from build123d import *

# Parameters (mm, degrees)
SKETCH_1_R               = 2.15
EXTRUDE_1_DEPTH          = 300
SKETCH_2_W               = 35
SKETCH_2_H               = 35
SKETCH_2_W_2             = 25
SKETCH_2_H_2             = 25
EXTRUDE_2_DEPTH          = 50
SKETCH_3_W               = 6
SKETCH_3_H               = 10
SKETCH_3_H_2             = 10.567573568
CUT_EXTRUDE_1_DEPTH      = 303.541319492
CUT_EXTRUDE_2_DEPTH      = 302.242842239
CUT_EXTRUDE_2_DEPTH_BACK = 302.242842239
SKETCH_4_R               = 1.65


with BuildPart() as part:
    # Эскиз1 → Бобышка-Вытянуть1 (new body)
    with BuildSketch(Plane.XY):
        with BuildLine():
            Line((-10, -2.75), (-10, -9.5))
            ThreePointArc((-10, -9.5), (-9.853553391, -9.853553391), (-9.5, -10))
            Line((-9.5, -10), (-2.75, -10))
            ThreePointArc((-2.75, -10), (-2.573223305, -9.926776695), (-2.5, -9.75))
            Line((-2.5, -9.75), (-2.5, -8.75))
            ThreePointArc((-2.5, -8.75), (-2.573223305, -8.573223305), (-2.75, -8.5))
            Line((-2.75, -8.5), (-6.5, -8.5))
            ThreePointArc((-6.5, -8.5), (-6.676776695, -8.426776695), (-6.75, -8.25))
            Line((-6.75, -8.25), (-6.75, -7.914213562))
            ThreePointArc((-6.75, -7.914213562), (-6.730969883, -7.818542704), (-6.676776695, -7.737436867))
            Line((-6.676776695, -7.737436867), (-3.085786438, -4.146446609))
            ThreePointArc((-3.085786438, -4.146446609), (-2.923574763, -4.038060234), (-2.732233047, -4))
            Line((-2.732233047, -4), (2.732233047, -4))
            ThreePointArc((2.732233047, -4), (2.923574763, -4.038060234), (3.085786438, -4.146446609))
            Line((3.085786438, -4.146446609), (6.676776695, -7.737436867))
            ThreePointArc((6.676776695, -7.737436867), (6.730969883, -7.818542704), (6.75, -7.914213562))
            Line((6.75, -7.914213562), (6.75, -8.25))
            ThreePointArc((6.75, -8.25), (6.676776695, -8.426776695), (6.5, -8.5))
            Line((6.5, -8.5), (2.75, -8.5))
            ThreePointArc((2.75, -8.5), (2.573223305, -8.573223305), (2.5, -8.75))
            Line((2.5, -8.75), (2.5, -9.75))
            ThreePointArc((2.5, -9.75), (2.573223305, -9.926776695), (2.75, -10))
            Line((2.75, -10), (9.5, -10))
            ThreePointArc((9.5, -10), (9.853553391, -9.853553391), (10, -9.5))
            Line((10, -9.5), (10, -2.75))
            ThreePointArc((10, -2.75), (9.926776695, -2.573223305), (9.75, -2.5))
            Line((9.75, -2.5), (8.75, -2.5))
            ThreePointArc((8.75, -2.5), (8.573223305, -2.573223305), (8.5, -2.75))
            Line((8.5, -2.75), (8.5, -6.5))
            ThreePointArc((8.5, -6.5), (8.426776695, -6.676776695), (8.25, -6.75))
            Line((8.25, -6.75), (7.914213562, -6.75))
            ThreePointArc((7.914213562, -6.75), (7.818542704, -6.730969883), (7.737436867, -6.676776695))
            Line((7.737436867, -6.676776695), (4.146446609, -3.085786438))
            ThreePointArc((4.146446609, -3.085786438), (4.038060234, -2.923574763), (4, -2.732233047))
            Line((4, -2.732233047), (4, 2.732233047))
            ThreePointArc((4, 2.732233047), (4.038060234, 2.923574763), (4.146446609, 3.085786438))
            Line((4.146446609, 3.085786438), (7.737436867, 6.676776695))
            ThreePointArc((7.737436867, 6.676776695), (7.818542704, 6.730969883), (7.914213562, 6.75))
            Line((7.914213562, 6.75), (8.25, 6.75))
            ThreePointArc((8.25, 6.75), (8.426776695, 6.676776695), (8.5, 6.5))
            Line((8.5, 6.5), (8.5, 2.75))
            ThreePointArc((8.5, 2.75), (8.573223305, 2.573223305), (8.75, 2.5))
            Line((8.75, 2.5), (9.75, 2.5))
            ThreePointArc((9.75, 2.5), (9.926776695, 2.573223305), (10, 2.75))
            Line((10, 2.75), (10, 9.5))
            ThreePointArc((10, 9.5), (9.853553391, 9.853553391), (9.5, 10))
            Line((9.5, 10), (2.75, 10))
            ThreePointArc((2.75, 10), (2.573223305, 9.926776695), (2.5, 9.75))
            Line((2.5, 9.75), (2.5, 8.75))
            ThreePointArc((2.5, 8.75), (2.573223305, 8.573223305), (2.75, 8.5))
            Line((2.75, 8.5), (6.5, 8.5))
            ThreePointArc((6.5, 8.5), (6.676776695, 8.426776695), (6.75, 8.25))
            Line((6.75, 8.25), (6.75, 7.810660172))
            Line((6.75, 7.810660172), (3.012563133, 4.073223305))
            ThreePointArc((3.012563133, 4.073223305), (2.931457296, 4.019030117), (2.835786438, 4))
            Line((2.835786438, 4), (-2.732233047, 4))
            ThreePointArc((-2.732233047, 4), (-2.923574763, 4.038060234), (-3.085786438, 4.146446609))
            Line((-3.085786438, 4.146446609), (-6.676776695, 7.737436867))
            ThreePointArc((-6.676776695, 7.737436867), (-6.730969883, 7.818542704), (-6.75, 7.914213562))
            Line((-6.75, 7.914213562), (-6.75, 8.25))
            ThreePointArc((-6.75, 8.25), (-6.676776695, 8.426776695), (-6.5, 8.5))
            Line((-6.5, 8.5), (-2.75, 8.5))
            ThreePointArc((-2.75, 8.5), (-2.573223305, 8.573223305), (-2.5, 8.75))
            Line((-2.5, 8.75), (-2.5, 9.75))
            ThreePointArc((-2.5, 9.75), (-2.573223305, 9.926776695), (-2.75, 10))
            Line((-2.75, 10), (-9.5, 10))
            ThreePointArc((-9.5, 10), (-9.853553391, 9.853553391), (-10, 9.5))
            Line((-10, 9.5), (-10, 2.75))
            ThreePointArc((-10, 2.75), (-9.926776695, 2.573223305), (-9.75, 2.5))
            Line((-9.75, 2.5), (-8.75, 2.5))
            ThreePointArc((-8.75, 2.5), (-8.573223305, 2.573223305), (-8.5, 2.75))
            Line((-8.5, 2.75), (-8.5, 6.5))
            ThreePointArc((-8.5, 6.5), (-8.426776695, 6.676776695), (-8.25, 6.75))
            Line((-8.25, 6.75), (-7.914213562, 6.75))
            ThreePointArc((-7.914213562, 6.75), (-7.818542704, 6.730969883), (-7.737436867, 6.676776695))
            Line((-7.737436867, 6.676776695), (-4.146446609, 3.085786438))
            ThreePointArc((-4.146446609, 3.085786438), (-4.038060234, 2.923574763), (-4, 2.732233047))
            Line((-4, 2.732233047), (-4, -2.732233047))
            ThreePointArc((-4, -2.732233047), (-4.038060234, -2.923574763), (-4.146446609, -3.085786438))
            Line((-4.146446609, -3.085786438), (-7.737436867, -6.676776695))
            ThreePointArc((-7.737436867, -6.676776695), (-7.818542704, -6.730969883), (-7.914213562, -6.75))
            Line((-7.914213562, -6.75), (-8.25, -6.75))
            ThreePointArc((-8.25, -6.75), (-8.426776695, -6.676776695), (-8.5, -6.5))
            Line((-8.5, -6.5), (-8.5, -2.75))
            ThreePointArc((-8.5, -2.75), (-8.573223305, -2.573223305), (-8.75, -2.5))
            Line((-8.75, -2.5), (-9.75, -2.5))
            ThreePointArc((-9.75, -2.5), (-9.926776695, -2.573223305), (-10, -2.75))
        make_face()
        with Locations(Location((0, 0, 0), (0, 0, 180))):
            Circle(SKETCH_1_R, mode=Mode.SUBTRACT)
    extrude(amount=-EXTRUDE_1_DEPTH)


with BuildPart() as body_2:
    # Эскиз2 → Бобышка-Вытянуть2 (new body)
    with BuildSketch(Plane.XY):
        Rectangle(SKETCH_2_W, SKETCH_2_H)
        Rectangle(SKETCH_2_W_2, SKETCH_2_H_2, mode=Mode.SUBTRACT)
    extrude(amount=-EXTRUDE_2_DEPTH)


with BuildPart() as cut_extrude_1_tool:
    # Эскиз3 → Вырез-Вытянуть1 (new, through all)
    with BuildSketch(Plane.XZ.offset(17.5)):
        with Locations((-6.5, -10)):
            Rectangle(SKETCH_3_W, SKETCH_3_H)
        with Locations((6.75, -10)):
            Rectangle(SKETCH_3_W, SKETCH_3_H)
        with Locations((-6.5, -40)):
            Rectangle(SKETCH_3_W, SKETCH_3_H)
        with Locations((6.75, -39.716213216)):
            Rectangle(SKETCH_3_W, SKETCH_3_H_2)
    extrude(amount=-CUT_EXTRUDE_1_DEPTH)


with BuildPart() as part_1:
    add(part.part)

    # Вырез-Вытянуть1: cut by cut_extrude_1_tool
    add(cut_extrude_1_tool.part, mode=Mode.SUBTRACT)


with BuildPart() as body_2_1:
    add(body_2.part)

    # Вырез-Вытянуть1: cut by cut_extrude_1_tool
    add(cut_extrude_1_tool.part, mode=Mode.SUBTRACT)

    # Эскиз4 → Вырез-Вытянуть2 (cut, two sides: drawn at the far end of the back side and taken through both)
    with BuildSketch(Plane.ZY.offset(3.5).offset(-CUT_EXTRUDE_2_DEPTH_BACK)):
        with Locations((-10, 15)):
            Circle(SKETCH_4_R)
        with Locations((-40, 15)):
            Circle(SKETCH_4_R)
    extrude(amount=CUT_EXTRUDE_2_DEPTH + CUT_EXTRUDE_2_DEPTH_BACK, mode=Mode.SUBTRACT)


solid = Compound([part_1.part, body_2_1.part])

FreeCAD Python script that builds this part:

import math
import FreeCAD as App
import Part
import Sketcher
from FreeCAD import Vector

doc = App.newDocument("Part")
body = doc.addObject("PartDesign::Body", "Body")

sketch1 = body.newObject("Sketcher::SketchObject", "Sketch")
sketch1.AttachmentSupport = (doc.getObject("XY_Plane"), [""])
sketch1.MapMode = "FlatFace"
sketch1.addGeometry(Part.LineSegment(Vector(-10, -2.75, 0), Vector(-10, -9.5, 0)), False)
sketch1.addGeometry(Part.ArcOfCircle(Part.Circle(Vector(-9.5, -9.5, 0), Vector(0, 0, 1), 0.5), math.radians(180), math.radians(270)), False)
sketch1.addGeometry(Part.LineSegment(Vector(-9.5, -10, 0), Vector(-2.75, -10, 0)), False)
sketch1.addGeometry(Part.ArcOfCircle(Part.Circle(Vector(-2.75, -9.75, 0), Vector(0, 0, 1), 0.25), math.radians(-90), math.radians(0)), False)
sketch1.addGeometry(Part.LineSegment(Vector(-2.5, -9.75, 0), Vector(-2.5, -8.75, 0)), False)
sketch1.addGeometry(Part.ArcOfCircle(Part.Circle(Vector(-2.75, -8.75, 0), Vector(0, 0, 1), 0.25), math.radians(0), math.radians(90)), False)
sketch1.addGeometry(Part.LineSegment(Vector(-2.75, -8.5, 0), Vector(-6.5, -8.5, 0)), False)
sketch1.addGeometry(Part.ArcOfCircle(Part.Circle(Vector(-6.5, -8.25, 0), Vector(0, 0, 1), 0.25), math.radians(-180), math.radians(-90)), False)
sketch1.addGeometry(Part.LineSegment(Vector(-6.75, -8.25, 0), Vector(-6.75, -7.914214, 0)), False)
sketch1.addGeometry(Part.ArcOfCircle(Part.Circle(Vector(-6.5, -7.914214, 0), Vector(0, 0, 1), 0.25), math.radians(135), math.radians(180)), False)
sketch1.addGeometry(Part.LineSegment(Vector(-6.676777, -7.737437, 0), Vector(-3.085786, -4.146447, 0)), False)
sketch1.addGeometry(Part.ArcOfCircle(Part.Circle(Vector(-2.732233, -4.5, 0), Vector(0, 0, 1), 0.5), math.radians(90), math.radians(135)), False)
sketch1.addGeometry(Part.LineSegment(Vector(-2.732233, -4, 0), Vector(2.732233, -4, 0)), False)
sketch1.addGeometry(Part.ArcOfCircle(Part.Circle(Vector(2.732233, -4.5, 0), Vector(0, 0, 1), 0.5), math.radians(45), math.radians(90)), False)
sketch1.addGeometry(Part.LineSegment(Vector(3.085786, -4.146447, 0), Vector(6.676777, -7.737437, 0)), False)
sketch1.addGeometry(Part.ArcOfCircle(Part.Circle(Vector(6.5, -7.914214, 0), Vector(0, 0, 1), 0.25), math.radians(0), math.radians(45)), False)
sketch1.addGeometry(Part.LineSegment(Vector(6.75, -7.914214, 0), Vector(6.75, -8.25, 0)), False)
sketch1.addGeometry(Part.ArcOfCircle(Part.Circle(Vector(6.5, -8.25, 0), Vector(0, 0, 1), 0.25), math.radians(-90), math.radians(0)), False)
sketch1.addGeometry(Part.LineSegment(Vector(6.5, -8.5, 0), Vector(2.75, -8.5, 0)), False)
sketch1.addGeometry(Part.ArcOfCircle(Part.Circle(Vector(2.75, -8.75, 0), Vector(0, 0, 1), 0.25), math.radians(90), math.radians(180)), False)
sketch1.addGeometry(Part.LineSegment(Vector(2.5, -8.75, 0), Vector(2.5, -9.75, 0)), False)
sketch1.addGeometry(Part.ArcOfCircle(Part.Circle(Vector(2.75, -9.75, 0), Vector(0, 0, 1), 0.25), math.radians(-180), math.radians(-90)), False)
sketch1.addGeometry(Part.LineSegment(Vector(2.75, -10, 0), Vector(9.5, -10, 0)), False)
sketch1.addGeometry(Part.ArcOfCircle(Part.Circle(Vector(9.5, -9.5, 0), Vector(0, 0, 1), 0.5), math.radians(-90), math.radians(0)), False)
sketch1.addGeometry(Part.LineSegment(Vector(10, -9.5, 0), Vector(10, -2.75, 0)), False)
sketch1.addGeometry(Part.ArcOfCircle(Part.Circle(Vector(9.75, -2.75, 0), Vector(0, 0, 1), 0.25), math.radians(0), math.radians(90)), False)
sketch1.addGeometry(Part.LineSegment(Vector(9.75, -2.5, 0), Vector(8.75, -2.5, 0)), False)
sketch1.addGeometry(Part.ArcOfCircle(Part.Circle(Vector(8.75, -2.75, 0), Vector(0, 0, 1), 0.25), math.radians(90), math.radians(180)), False)
sketch1.addGeometry(Part.LineSegment(Vector(8.5, -2.75, 0), Vector(8.5, -6.5, 0)), False)
sketch1.addGeometry(Part.ArcOfCircle(Part.Circle(Vector(8.25, -6.5, 0), Vector(0, 0, 1), 0.25), math.radians(-90), math.radians(0)), False)
sketch1.addGeometry(Part.LineSegment(Vector(8.25, -6.75, 0), Vector(7.914214, -6.75, 0)), False)
sketch1.addGeometry(Part.ArcOfCircle(Part.Circle(Vector(7.914214, -6.5, 0), Vector(0, 0, 1), 0.25), math.radians(-135), math.radians(-90)), False)
sketch1.addGeometry(Part.LineSegment(Vector(7.737437, -6.676777, 0), Vector(4.146447, -3.085786, 0)), False)
sketch1.addGeometry(Part.ArcOfCircle(Part.Circle(Vector(4.5, -2.732233, 0), Vector(0, 0, 1), 0.5), math.radians(-180), math.radians(-135)), False)
sketch1.addGeometry(Part.LineSegment(Vector(4, -2.732233, 0), Vector(4, 2.732233, 0)), False)
sketch1.addGeometry(Part.ArcOfCircle(Part.Circle(Vector(4.5, 2.732233, 0), Vector(0, 0, 1), 0.5), math.radians(135), math.radians(180)), False)
sketch1.addGeometry(Part.LineSegment(Vector(4.146447, 3.085786, 0), Vector(7.737437, 6.676777, 0)), False)
sketch1.addGeometry(Part.ArcOfCircle(Part.Circle(Vector(7.914214, 6.5, 0), Vector(0, 0, 1), 0.25), math.radians(90), math.radians(135)), False)
sketch1.addGeometry(Part.LineSegment(Vector(7.914214, 6.75, 0), Vector(8.25, 6.75, 0)), False)
sketch1.addGeometry(Part.ArcOfCircle(Part.Circle(Vector(8.25, 6.5, 0), Vector(0, 0, 1), 0.25), math.radians(0), math.radians(90)), False)
sketch1.addGeometry(Part.LineSegment(Vector(8.5, 6.5, 0), Vector(8.5, 2.75, 0)), False)
sketch1.addGeometry(Part.ArcOfCircle(Part.Circle(Vector(8.75, 2.75, 0), Vector(0, 0, 1), 0.25), math.radians(-180), math.radians(-90)), False)
sketch1.addGeometry(Part.LineSegment(Vector(8.75, 2.5, 0), Vector(9.75, 2.5, 0)), False)
sketch1.addGeometry(Part.ArcOfCircle(Part.Circle(Vector(9.75, 2.75, 0), Vector(0, 0, 1), 0.25), math.radians(-90), math.radians(0)), False)
sketch1.addGeometry(Part.LineSegment(Vector(10, 2.75, 0), Vector(10, 9.5, 0)), False)
sketch1.addGeometry(Part.ArcOfCircle(Part.Circle(Vector(9.5, 9.5, 0), Vector(0, 0, 1), 0.5), math.radians(0), math.radians(90)), False)
sketch1.addGeometry(Part.LineSegment(Vector(9.5, 10, 0), Vector(2.75, 10, 0)), False)
sketch1.addGeometry(Part.ArcOfCircle(Part.Circle(Vector(2.75, 9.75, 0), Vector(0, 0, 1), 0.25), math.radians(90), math.radians(180)), False)
sketch1.addGeometry(Part.LineSegment(Vector(2.5, 9.75, 0), Vector(2.5, 8.75, 0)), False)
sketch1.addGeometry(Part.ArcOfCircle(Part.Circle(Vector(2.75, 8.75, 0), Vector(0, 0, 1), 0.25), math.radians(-180), math.radians(-90)), False)
sketch1.addGeometry(Part.LineSegment(Vector(2.75, 8.5, 0), Vector(6.5, 8.5, 0)), False)
sketch1.addGeometry(Part.ArcOfCircle(Part.Circle(Vector(6.5, 8.25, 0), Vector(0, 0, 1), 0.25), math.radians(0), math.radians(90)), False)
sketch1.addGeometry(Part.LineSegment(Vector(6.75, 8.25, 0), Vector(6.75, 7.81066, 0)), False)
sketch1.addGeometry(Part.LineSegment(Vector(6.75, 7.81066, 0), Vector(3.012563, 4.073223, 0)), False)
sketch1.addGeometry(Part.ArcOfCircle(Part.Circle(Vector(2.835786, 4.25, 0), Vector(0, 0, 1), 0.25), math.radians(-90), math.radians(-45)), False)
sketch1.addGeometry(Part.LineSegment(Vector(2.835786, 4, 0), Vector(-2.732233, 4, 0)), False)
sketch1.addGeometry(Part.ArcOfCircle(Part.Circle(Vector(-2.732233, 4.5, 0), Vector(0, 0, 1), 0.5), math.radians(-135), math.radians(-90)), False)
sketch1.addGeometry(Part.LineSegment(Vector(-3.085786, 4.146447, 0), Vector(-6.676777, 7.737437, 0)), False)
sketch1.addGeometry(Part.ArcOfCircle(Part.Circle(Vector(-6.5, 7.914214, 0), Vector(0, 0, 1), 0.25), math.radians(180), math.radians(225)), False)
sketch1.addGeometry(Part.LineSegment(Vector(-6.75, 7.914214, 0), Vector(-6.75, 8.25, 0)), False)
sketch1.addGeometry(Part.ArcOfCircle(Part.Circle(Vector(-6.5, 8.25, 0), Vector(0, 0, 1), 0.25), math.radians(90), math.radians(180)), False)
sketch1.addGeometry(Part.LineSegment(Vector(-6.5, 8.5, 0), Vector(-2.75, 8.5, 0)), False)
sketch1.addGeometry(Part.ArcOfCircle(Part.Circle(Vector(-2.75, 8.75, 0), Vector(0, 0, 1), 0.25), math.radians(-90), math.radians(0)), False)
sketch1.addGeometry(Part.LineSegment(Vector(-2.5, 8.75, 0), Vector(-2.5, 9.75, 0)), False)
sketch1.addGeometry(Part.ArcOfCircle(Part.Circle(Vector(-2.75, 9.75, 0), Vector(0, 0, 1), 0.25), math.radians(0), math.radians(90)), False)
sketch1.addGeometry(Part.LineSegment(Vector(-2.75, 10, 0), Vector(-9.5, 10, 0)), False)
sketch1.addGeometry(Part.ArcOfCircle(Part.Circle(Vector(-9.5, 9.5, 0), Vector(0, 0, 1), 0.5), math.radians(90), math.radians(180)), False)
sketch1.addGeometry(Part.LineSegment(Vector(-10, 9.5, 0), Vector(-10, 2.75, 0)), False)
sketch1.addGeometry(Part.ArcOfCircle(Part.Circle(Vector(-9.75, 2.75, 0), Vector(0, 0, 1), 0.25), math.radians(-180), math.radians(-90)), False)
sketch1.addGeometry(Part.LineSegment(Vector(-9.75, 2.5, 0), Vector(-8.75, 2.5, 0)), False)
sketch1.addGeometry(Part.ArcOfCircle(Part.Circle(Vector(-8.75, 2.75, 0), Vector(0, 0, 1), 0.25), math.radians(-90), math.radians(0)), False)
sketch1.addGeometry(Part.LineSegment(Vector(-8.5, 2.75, 0), Vector(-8.5, 6.5, 0)), False)
sketch1.addGeometry(Part.ArcOfCircle(Part.Circle(Vector(-8.25, 6.5, 0), Vector(0, 0, 1), 0.25), math.radians(90), math.radians(180)), False)
sketch1.addGeometry(Part.LineSegment(Vector(-8.25, 6.75, 0), Vector(-7.914214, 6.75, 0)), False)
sketch1.addGeometry(Part.ArcOfCircle(Part.Circle(Vector(-7.914214, 6.5, 0), Vector(0, 0, 1), 0.25), math.radians(45), math.radians(90)), False)
sketch1.addGeometry(Part.LineSegment(Vector(-7.737437, 6.676777, 0), Vector(-4.146447, 3.085786, 0)), False)
sketch1.addGeometry(Part.ArcOfCircle(Part.Circle(Vector(-4.5, 2.732233, 0), Vector(0, 0, 1), 0.5), math.radians(0), math.radians(45)), False)
sketch1.addGeometry(Part.LineSegment(Vector(-4, 2.732233, 0), Vector(-4, -2.732233, 0)), False)
sketch1.addGeometry(Part.ArcOfCircle(Part.Circle(Vector(-4.5, -2.732233, 0), Vector(0, 0, 1), 0.5), math.radians(-45), math.radians(0)), False)
sketch1.addGeometry(Part.LineSegment(Vector(-4.146447, -3.085786, 0), Vector(-7.737437, -6.676777, 0)), False)
sketch1.addGeometry(Part.ArcOfCircle(Part.Circle(Vector(-7.914214, -6.5, 0), Vector(0, 0, 1), 0.25), math.radians(-90), math.radians(-45)), False)
sketch1.addGeometry(Part.LineSegment(Vector(-7.914214, -6.75, 0), Vector(-8.25, -6.75, 0)), False)
sketch1.addGeometry(Part.ArcOfCircle(Part.Circle(Vector(-8.25, -6.5, 0), Vector(0, 0, 1), 0.25), math.radians(-180), math.radians(-90)), False)
sketch1.addGeometry(Part.LineSegment(Vector(-8.5, -6.5, 0), Vector(-8.5, -2.75, 0)), False)
sketch1.addGeometry(Part.ArcOfCircle(Part.Circle(Vector(-8.75, -2.75, 0), Vector(0, 0, 1), 0.25), math.radians(0), math.radians(90)), False)
sketch1.addGeometry(Part.LineSegment(Vector(-8.75, -2.5, 0), Vector(-9.75, -2.5, 0)), False)
sketch1.addGeometry(Part.ArcOfCircle(Part.Circle(Vector(-9.75, -2.75, 0), Vector(0, 0, 1), 0.25), math.radians(90), math.radians(180)), False)
sketch1.addGeometry(Part.Circle(Vector(0, 0, 0), Vector(0, 0, 1), 2.15), False)
sketch1.addConstraint(Sketcher.Constraint("Tangent", 0, 2, 1, 1))
sketch1.addConstraint(Sketcher.Constraint("Tangent", 1, 2, 2, 1))
sketch1.addConstraint(Sketcher.Constraint("Tangent", 2, 2, 3, 1))
sketch1.addConstraint(Sketcher.Constraint("Tangent", 3, 2, 4, 1))
sketch1.addConstraint(Sketcher.Constraint("Tangent", 4, 2, 5, 1))
sketch1.addConstraint(Sketcher.Constraint("Tangent", 5, 2, 6, 1))
sketch1.addConstraint(Sketcher.Constraint("Tangent", 6, 2, 7, 2))
sketch1.addConstraint(Sketcher.Constraint("Tangent", 7, 1, 8, 1))
sketch1.addConstraint(Sketcher.Constraint("Tangent", 8, 2, 9, 2))
sketch1.addConstraint(Sketcher.Constraint("Tangent", 9, 1, 10, 1))
sketch1.addConstraint(Sketcher.Constraint("Tangent", 10, 2, 11, 2))
sketch1.addConstraint(Sketcher.Constraint("Tangent", 11, 1, 12, 1))
sketch1.addConstraint(Sketcher.Constraint("Tangent", 12, 2, 13, 2))
sketch1.addConstraint(Sketcher.Constraint("Tangent", 13, 1, 14, 1))
sketch1.addConstraint(Sketcher.Constraint("Tangent", 14, 2, 15, 2))
sketch1.addConstraint(Sketcher.Constraint("Tangent", 15, 1, 16, 1))
sketch1.addConstraint(Sketcher.Constraint("Tangent", 16, 2, 17, 2))
sketch1.addConstraint(Sketcher.Constraint("Tangent", 17, 1, 18, 1))
sketch1.addConstraint(Sketcher.Constraint("Tangent", 18, 2, 19, 1))
sketch1.addConstraint(Sketcher.Constraint("Tangent", 19, 2, 20, 1))
sketch1.addConstraint(Sketcher.Constraint("Tangent", 20, 2, 21, 1))
sketch1.addConstraint(Sketcher.Constraint("Tangent", 21, 2, 22, 1))
sketch1.addConstraint(Sketcher.Constraint("Tangent", 22, 2, 23, 1))
sketch1.addConstraint(Sketcher.Constraint("Tangent", 23, 2, 24, 1))
sketch1.addConstraint(Sketcher.Constraint("Tangent", 24, 2, 25, 1))
sketch1.addConstraint(Sketcher.Constraint("Tangent", 25, 2, 26, 1))
sketch1.addConstraint(Sketcher.Constraint("Tangent", 26, 2, 27, 1))
sketch1.addConstraint(Sketcher.Constraint("Tangent", 27, 2, 28, 1))
sketch1.addConstraint(Sketcher.Constraint("Tangent", 28, 2, 29, 2))
sketch1.addConstraint(Sketcher.Constraint("Tangent", 29, 1, 30, 1))
sketch1.addConstraint(Sketcher.Constraint("Tangent", 30, 2, 31, 2))
sketch1.addConstraint(Sketcher.Constraint("Tangent", 31, 1, 32, 1))
sketch1.addConstraint(Sketcher.Constraint("Tangent", 32, 2, 33, 2))
sketch1.addConstraint(Sketcher.Constraint("Tangent", 33, 1, 34, 1))
sketch1.addConstraint(Sketcher.Constraint("Tangent", 34, 2, 35, 2))
sketch1.addConstraint(Sketcher.Constraint("Tangent", 35, 1, 36, 1))
sketch1.addConstraint(Sketcher.Constraint("Tangent", 36, 2, 37, 2))
sketch1.addConstraint(Sketcher.Constraint("Tangent", 37, 1, 38, 1))
sketch1.addConstraint(Sketcher.Constraint("Tangent", 38, 2, 39, 2))
sketch1.addConstraint(Sketcher.Constraint("Tangent", 39, 1, 40, 1))
sketch1.addConstraint(Sketcher.Constraint("Tangent", 40, 2, 41, 1))
sketch1.addConstraint(Sketcher.Constraint("Tangent", 41, 2, 42, 1))
sketch1.addConstraint(Sketcher.Constraint("Tangent", 42, 2, 43, 1))
sketch1.addConstraint(Sketcher.Constraint("Tangent", 43, 2, 44, 1))
sketch1.addConstraint(Sketcher.Constraint("Tangent", 44, 2, 45, 1))
sketch1.addConstraint(Sketcher.Constraint("Tangent", 45, 2, 46, 1))
sketch1.addConstraint(Sketcher.Constraint("Tangent", 46, 2, 47, 1))
sketch1.addConstraint(Sketcher.Constraint("Tangent", 47, 2, 48, 1))
sketch1.addConstraint(Sketcher.Constraint("Tangent", 48, 2, 49, 1))
sketch1.addConstraint(Sketcher.Constraint("Tangent", 49, 2, 50, 1))
sketch1.addConstraint(Sketcher.Constraint("Tangent", 50, 2, 51, 2))
sketch1.addConstraint(Sketcher.Constraint("Tangent", 51, 1, 52, 1))
sketch1.addConstraint(Sketcher.Constraint("Coincident", 52, 2, 53, 1))
sketch1.addConstraint(Sketcher.Constraint("Tangent", 53, 2, 54, 2))
sketch1.addConstraint(Sketcher.Constraint("Tangent", 54, 1, 55, 1))
sketch1.addConstraint(Sketcher.Constraint("Tangent", 55, 2, 56, 2))
sketch1.addConstraint(Sketcher.Constraint("Tangent", 56, 1, 57, 1))
sketch1.addConstraint(Sketcher.Constraint("Tangent", 57, 2, 58, 2))
sketch1.addConstraint(Sketcher.Constraint("Tangent", 58, 1, 59, 1))
sketch1.addConstraint(Sketcher.Constraint("Tangent", 59, 2, 60, 2))
sketch1.addConstraint(Sketcher.Constraint("Tangent", 60, 1, 61, 1))
sketch1.addConstraint(Sketcher.Constraint("Tangent", 61, 2, 62, 1))
sketch1.addConstraint(Sketcher.Constraint("Tangent", 62, 2, 63, 1))
sketch1.addConstraint(Sketcher.Constraint("Tangent", 63, 2, 64, 1))
sketch1.addConstraint(Sketcher.Constraint("Tangent", 64, 2, 65, 1))
sketch1.addConstraint(Sketcher.Constraint("Tangent", 65, 2, 66, 1))
sketch1.addConstraint(Sketcher.Constraint("Tangent", 66, 2, 67, 1))
sketch1.addConstraint(Sketcher.Constraint("Tangent", 67, 2, 68, 1))
sketch1.addConstraint(Sketcher.Constraint("Tangent", 68, 2, 69, 1))
sketch1.addConstraint(Sketcher.Constraint("Tangent", 69, 2, 70, 1))
sketch1.addConstraint(Sketcher.Constraint("Tangent", 70, 2, 71, 1))
sketch1.addConstraint(Sketcher.Constraint("Tangent", 71, 2, 72, 2))
sketch1.addConstraint(Sketcher.Constraint("Tangent", 72, 1, 73, 1))
sketch1.addConstraint(Sketcher.Constraint("Tangent", 73, 2, 74, 2))
sketch1.addConstraint(Sketcher.Constraint("Tangent", 74, 1, 75, 1))
sketch1.addConstraint(Sketcher.Constraint("Tangent", 75, 2, 76, 2))
sketch1.addConstraint(Sketcher.Constraint("Tangent", 76, 1, 77, 1))
sketch1.addConstraint(Sketcher.Constraint("Tangent", 77, 2, 78, 2))
sketch1.addConstraint(Sketcher.Constraint("Tangent", 78, 1, 79, 1))
sketch1.addConstraint(Sketcher.Constraint("Tangent", 79, 2, 80, 2))
sketch1.addConstraint(Sketcher.Constraint("Tangent", 80, 1, 81, 1))
sketch1.addConstraint(Sketcher.Constraint("Tangent", 81, 2, 82, 2))
sketch1.addConstraint(Sketcher.Constraint("Tangent", 82, 1, 83, 1))
sketch1.addConstraint(Sketcher.Constraint("Tangent", 83, 2, 84, 1))
sketch1.addConstraint(Sketcher.Constraint("Tangent", 84, 2, 85, 1))
sketch1.addConstraint(Sketcher.Constraint("Tangent", 85, 2, 86, 1))
sketch1.addConstraint(Sketcher.Constraint("Tangent", 86, 2, 0, 1))
sketch1.addConstraint(Sketcher.Constraint("Vertical", 0))
sketch1.addConstraint(Sketcher.Constraint("Horizontal", 2))
sketch1.addConstraint(Sketcher.Constraint("Vertical", 4))
sketch1.addConstraint(Sketcher.Constraint("Horizontal", 6))
sketch1.addConstraint(Sketcher.Constraint("Vertical", 8))
sketch1.addConstraint(Sketcher.Constraint("Horizontal", 12))
sketch1.addConstraint(Sketcher.Constraint("Vertical", 16))
sketch1.addConstraint(Sketcher.Constraint("Horizontal", 18))
sketch1.addConstraint(Sketcher.Constraint("Vertical", 20))
sketch1.addConstraint(Sketcher.Constraint("Horizontal", 22))
sketch1.addConstraint(Sketcher.Constraint("Vertical", 24))
sketch1.addConstraint(Sketcher.Constraint("Horizontal", 26))
sketch1.addConstraint(Sketcher.Constraint("Vertical", 28))
sketch1.addConstraint(Sketcher.Constraint("Horizontal", 30))
sketch1.addConstraint(Sketcher.Constraint("Vertical", 34))
sketch1.addConstraint(Sketcher.Constraint("Horizontal", 38))
sketch1.addConstraint(Sketcher.Constraint("Vertical", 40))
sketch1.addConstraint(Sketcher.Constraint("Horizontal", 42))
sketch1.addConstraint(Sketcher.Constraint("Vertical", 44))
sketch1.addConstraint(Sketcher.Constraint("Horizontal", 46))
sketch1.addConstraint(Sketcher.Constraint("Vertical", 48))
sketch1.addConstraint(Sketcher.Constraint("Horizontal", 50))
sketch1.addConstraint(Sketcher.Constraint("Vertical", 52))
sketch1.addConstraint(Sketcher.Constraint("Horizontal", 55))
sketch1.addConstraint(Sketcher.Constraint("Vertical", 59))
sketch1.addConstraint(Sketcher.Constraint("Horizontal", 61))
sketch1.addConstraint(Sketcher.Constraint("Vertical", 63))
sketch1.addConstraint(Sketcher.Constraint("Horizontal", 65))
sketch1.addConstraint(Sketcher.Constraint("Vertical", 67))
sketch1.addConstraint(Sketcher.Constraint("Horizontal", 69))
sketch1.addConstraint(Sketcher.Constraint("Vertical", 71))
sketch1.addConstraint(Sketcher.Constraint("Horizontal", 73))
sketch1.addConstraint(Sketcher.Constraint("Vertical", 77))
sketch1.addConstraint(Sketcher.Constraint("Horizontal", 81))
sketch1.addConstraint(Sketcher.Constraint("Vertical", 83))
sketch1.addConstraint(Sketcher.Constraint("Horizontal", 85))
sketch1.addConstraint(Sketcher.Constraint("Coincident", 87, 3, -1, 1))
sketch1.addConstraint(Sketcher.Constraint("Equal", 3, 5))
sketch1.addConstraint(Sketcher.Constraint("Equal", 5, 7))
sketch1.addConstraint(Sketcher.Constraint("Equal", 7, 9))
sketch1.addConstraint(Sketcher.Constraint("Equal", 1, 11))
sketch1.addConstraint(Sketcher.Constraint("Equal", 11, 13))
sketch1.addConstraint(Sketcher.Constraint("Equal", 9, 15))
sketch1.addConstraint(Sketcher.Constraint("Equal", 15, 17))
sketch1.addConstraint(Sketcher.Constraint("Equal", 17, 19))
sketch1.addConstraint(Sketcher.Constraint("Equal", 19, 21))
sketch1.addConstraint(Sketcher.Constraint("Equal", 13, 23))
sketch1.addConstraint(Sketcher.Constraint("Equal", 21, 25))
sketch1.addConstraint(Sketcher.Constraint("Equal", 25, 27))
sketch1.addConstraint(Sketcher.Constraint("Equal", 27, 29))
sketch1.addConstraint(Sketcher.Constraint("Equal", 29, 31))
sketch1.addConstraint(Sketcher.Constraint("Equal", 23, 33))
sketch1.addConstraint(Sketcher.Constraint("Equal", 33, 35))
sketch1.addConstraint(Sketcher.Constraint("Equal", 31, 37))
sketch1.addConstraint(Sketcher.Constraint("Equal", 37, 39))
sketch1.addConstraint(Sketcher.Constraint("Equal", 39, 41))
sketch1.addConstraint(Sketcher.Constraint("Equal", 41, 43))
sketch1.addConstraint(Sketcher.Constraint("Equal", 35, 45))
sketch1.addConstraint(Sketcher.Constraint("Equal", 43, 47))
sketch1.addConstraint(Sketcher.Constraint("Equal", 47, 49))
sketch1.addConstraint(Sketcher.Constraint("Equal", 49, 51))
sketch1.addConstraint(Sketcher.Constraint("Equal", 51, 54))
sketch1.addConstraint(Sketcher.Constraint("Equal", 45, 56))
sketch1.addConstraint(Sketcher.Constraint("Equal", 54, 58))
sketch1.addConstraint(Sketcher.Constraint("Equal", 58, 60))
sketch1.addConstraint(Sketcher.Constraint("Equal", 60, 62))
sketch1.addConstraint(Sketcher.Constraint("Equal", 62, 64))
sketch1.addConstraint(Sketcher.Constraint("Equal", 56, 66))
sketch1.addConstraint(Sketcher.Constraint("Equal", 64, 68))
sketch1.addConstraint(Sketcher.Constraint("Equal", 68, 70))
sketch1.addConstraint(Sketcher.Constraint("Equal", 70, 72))
sketch1.addConstraint(Sketcher.Constraint("Equal", 72, 74))
sketch1.addConstraint(Sketcher.Constraint("Equal", 66, 76))
sketch1.addConstraint(Sketcher.Constraint("Equal", 76, 78))
sketch1.addConstraint(Sketcher.Constraint("Equal", 74, 80))
sketch1.addConstraint(Sketcher.Constraint("Equal", 80, 82))
sketch1.addConstraint(Sketcher.Constraint("Equal", 82, 84))
sketch1.addConstraint(Sketcher.Constraint("Equal", 84, 86))
sketch1.addConstraint(Sketcher.Constraint("Symmetric", 1, 3, 45, 3, -1, 1))
sketch1.addConstraint(Sketcher.Constraint("Symmetric", 5, 3, 49, 3, -1, 1))
sketch1.addConstraint(Sketcher.Constraint("Symmetric", 13, 3, 56, 3, -1, 1))
sketch1.addConstraint(Sketcher.Constraint("Symmetric", 15, 3, 58, 3, -1, 1))
sketch1.addConstraint(Sketcher.Constraint("Symmetric", 19, 3, 62, 3, -1, 1))
sketch1.addConstraint(Sketcher.Constraint("Symmetric", 23, 3, 66, 3, -1, 1))
sketch1.addConstraint(Sketcher.Constraint("Symmetric", 27, 3, 70, 3, -1, 1))
sketch1.addConstraint(Sketcher.Constraint("Symmetric", 31, 3, 74, 3, -1, 1))
sketch1.addConstraint(Sketcher.Constraint("Symmetric", 33, 3, 76, 3, -1, 1))
sketch1.addConstraint(Sketcher.Constraint("Symmetric", 37, 3, 80, 3, -1, 1))
sketch1.addConstraint(Sketcher.Constraint("Symmetric", 41, 3, 84, 3, -1, 1))
sketch1.addConstraint(Sketcher.Constraint("Symmetric", 9, 3, 15, 3, -2))
sketch1.addConstraint(Sketcher.Constraint("Symmetric", 5, 3, 19, 3, -2))
sketch1.addConstraint(Sketcher.Constraint("Symmetric", 1, 3, 23, 3, -2))
sketch1.addConstraint(Sketcher.Constraint("Symmetric", 41, 3, 70, 3, -2))
sketch1.addConstraint(Sketcher.Constraint("Symmetric", 37, 3, 74, 3, -2))
sketch1.addConstraint(Sketcher.Constraint("Perpendicular", 10, 14))
sketch1.addConstraint(Sketcher.Constraint("Parallel", 14, 32))
sketch1.addConstraint(Sketcher.Constraint("Perpendicular", 32, 36))
sketch1.addConstraint(Sketcher.Constraint("Parallel", 36, 53))
sketch1.addConstraint(Sketcher.Constraint("Perpendicular", 75, 79))
sketch1.addConstraint(Sketcher.Constraint("Horizontal", 35, 3, 76, 3))
sketch1.addConstraint(Sketcher.Constraint("Vertical", 17, 3, 51, 3))
sketch1.addConstraint(Sketcher.Constraint("Equal", 65, 0))
sketch1.addConstraint(Sketcher.Constraint("Equal", 85, 4))
sketch1.addConstraint(Sketcher.Constraint("Equal", 81, 8))
sketch1.addConstraint(Sketcher.Constraint("Equal", 61, 28))
sketch1.addConstraint(Sketcher.Constraint("Equal", 12, 34))
sketch1.addConstraint(Sketcher.Constraint("Equal", 14, 32))
sketch1.addConstraint(Sketcher.Constraint("Diameter", 87, 4.3))
sketch1.addConstraint(Sketcher.Constraint("Radius", 1, 0.5))
sketch1.addConstraint(Sketcher.Constraint("DistanceX", 26, 2, 26, 1, 1.0))
sketch1.addConstraint(Sketcher.Constraint("Radius", 3, 0.25))
sketch1.addConstraint(Sketcher.Constraint("DistanceX", 0, 2, -1, 1, 10.0))
sketch1.addConstraint(Sketcher.Constraint("DistanceY", 11, 1, -1, 1, 4.0))
sketch1.addConstraint(Sketcher.Constraint("DistanceX", 2, 1, 2, 2, 6.75))
sketch1.addConstraint(Sketcher.Constraint("DistanceX", 6, 2, 6, 1, 3.75))
sketch1.addConstraint(Sketcher.Constraint("DistanceX", 55, 2, 55, 1, 5.568019))
sketch1.addConstraint(Sketcher.Constraint("DistanceY", 52, 2, 52, 1, 0.43934))
pad1 = body.newObject("PartDesign::Pad", "Pad")
pad1.Profile = sketch1
pad1.Length = 300
pad1.Reversed = True
body2 = doc.addObject("PartDesign::Body", "Body001")

sketch2 = body2.newObject("Sketcher::SketchObject", "Sketch001")
sketch2.AttachmentSupport = (doc.getObject("XY_Plane001"), [""])
sketch2.MapMode = "FlatFace"
sketch2.addGeometry(Part.LineSegment(Vector(-17.5, 17.5, 0), Vector(-17.5, -17.5, 0)), False)
sketch2.addGeometry(Part.LineSegment(Vector(-17.5, -17.5, 0), Vector(17.5, -17.5, 0)), False)
sketch2.addGeometry(Part.LineSegment(Vector(17.5, -17.5, 0), Vector(17.5, 17.5, 0)), False)
sketch2.addGeometry(Part.LineSegment(Vector(17.5, 17.5, 0), Vector(-17.5, 17.5, 0)), False)
sketch2.addGeometry(Part.LineSegment(Vector(12.5, -12.5, 0), Vector(-12.5, -12.5, 0)), False)
sketch2.addGeometry(Part.LineSegment(Vector(-12.5, -12.5, 0), Vector(-12.5, 12.5, 0)), False)
sketch2.addGeometry(Part.LineSegment(Vector(-12.5, 12.5, 0), Vector(12.5, 12.5, 0)), False)
sketch2.addGeometry(Part.LineSegment(Vector(12.5, 12.5, 0), Vector(12.5, -12.5, 0)), False)
sketch2.addConstraint(Sketcher.Constraint("Coincident", 0, 2, 1, 1))
sketch2.addConstraint(Sketcher.Constraint("Coincident", 1, 2, 2, 1))
sketch2.addConstraint(Sketcher.Constraint("Coincident", 2, 2, 3, 1))
sketch2.addConstraint(Sketcher.Constraint("Coincident", 3, 2, 0, 1))
sketch2.addConstraint(Sketcher.Constraint("Coincident", 4, 2, 5, 1))
sketch2.addConstraint(Sketcher.Constraint("Coincident", 5, 2, 6, 1))
sketch2.addConstraint(Sketcher.Constraint("Coincident", 6, 2, 7, 1))
sketch2.addConstraint(Sketcher.Constraint("Coincident", 7, 2, 4, 1))
sketch2.addConstraint(Sketcher.Constraint("Vertical", 0))
sketch2.addConstraint(Sketcher.Constraint("Horizontal", 1))
sketch2.addConstraint(Sketcher.Constraint("Vertical", 2))
sketch2.addConstraint(Sketcher.Constraint("Horizontal", 3))
sketch2.addConstraint(Sketcher.Constraint("Horizontal", 4))
sketch2.addConstraint(Sketcher.Constraint("Vertical", 5))
sketch2.addConstraint(Sketcher.Constraint("Horizontal", 6))
sketch2.addConstraint(Sketcher.Constraint("Vertical", 7))
sketch2.addConstraint(Sketcher.Constraint("Symmetric", 0, 2, 2, 2, -1, 1))
sketch2.addConstraint(Sketcher.Constraint("Symmetric", 4, 2, 6, 2, -1, 1))
sketch2.addConstraint(Sketcher.Constraint("Equal", 3, 0))
sketch2.addConstraint(Sketcher.Constraint("Equal", 6, 5))
sketch2.addConstraint(Sketcher.Constraint("DistanceX", 1, 1, 1, 2, 35.0))
sketch2.addConstraint(Sketcher.Constraint("DistanceX", 4, 2, 4, 1, 25.0))
pad2 = body2.newObject("PartDesign::Pad", "Pad001")
pad2.Profile = sketch2
pad2.Length = 50
pad2.Reversed = True
body3 = doc.addObject("PartDesign::Body", "Body002")
body3.AllowCompound = True

sketch3 = body3.newObject("Sketcher::SketchObject", "Sketch002")
sketch3.AttachmentSupport = (doc.getObject("XZ_Plane002"), [""])
sketch3.MapMode = "FlatFace"
sketch3.AttachmentOffset = App.Placement(Vector(0, 0, 17.5), App.Rotation())
sketch3.addGeometry(Part.LineSegment(Vector(-9.5, -5, 0), Vector(-9.5, -15, 0)), False)
sketch3.addGeometry(Part.LineSegment(Vector(-9.5, -15, 0), Vector(-3.5, -15, 0)), False)
sketch3.addGeometry(Part.LineSegment(Vector(-3.5, -15, 0), Vector(-3.5, -5, 0)), False)
sketch3.addGeometry(Part.LineSegment(Vector(-3.5, -5, 0), Vector(-9.5, -5, 0)), False)
sketch3.addGeometry(Part.LineSegment(Vector(3.75, -5, 0), Vector(3.75, -15, 0)), False)
sketch3.addGeometry(Part.LineSegment(Vector(3.75, -15, 0), Vector(9.75, -15, 0)), False)
sketch3.addGeometry(Part.LineSegment(Vector(9.75, -15, 0), Vector(9.75, -5, 0)), False)
sketch3.addGeometry(Part.LineSegment(Vector(9.75, -5, 0), Vector(3.75, -5, 0)), False)
sketch3.addGeometry(Part.LineSegment(Vector(-9.5, -35, 0), Vector(-9.5, -45, 0)), False)
sketch3.addGeometry(Part.LineSegment(Vector(-9.5, -45, 0), Vector(-3.5, -45, 0)), False)
sketch3.addGeometry(Part.LineSegment(Vector(-3.5, -45, 0), Vector(-3.5, -35, 0)), False)
sketch3.addGeometry(Part.LineSegment(Vector(-3.5, -35, 0), Vector(-9.5, -35, 0)), False)
sketch3.addGeometry(Part.LineSegment(Vector(3.75, -34.432426, 0), Vector(3.75, -45, 0)), False)
sketch3.addGeometry(Part.LineSegment(Vector(3.75, -45, 0), Vector(9.75, -45, 0)), False)
sketch3.addGeometry(Part.LineSegment(Vector(9.75, -45, 0), Vector(9.75, -34.432426, 0)), False)
sketch3.addGeometry(Part.LineSegment(Vector(9.75, -34.432426, 0), Vector(3.75, -34.432426, 0)), False)
sketch3.addConstraint(Sketcher.Constraint("Coincident", 0, 2, 1, 1))
sketch3.addConstraint(Sketcher.Constraint("Coincident", 1, 2, 2, 1))
sketch3.addConstraint(Sketcher.Constraint("Coincident", 2, 2, 3, 1))
sketch3.addConstraint(Sketcher.Constraint("Coincident", 3, 2, 0, 1))
sketch3.addConstraint(Sketcher.Constraint("Coincident", 4, 2, 5, 1))
sketch3.addConstraint(Sketcher.Constraint("Coincident", 5, 2, 6, 1))
sketch3.addConstraint(Sketcher.Constraint("Coincident", 6, 2, 7, 1))
sketch3.addConstraint(Sketcher.Constraint("Coincident", 7, 2, 4, 1))
sketch3.addConstraint(Sketcher.Constraint("Coincident", 8, 2, 9, 1))
sketch3.addConstraint(Sketcher.Constraint("Coincident", 9, 2, 10, 1))
sketch3.addConstraint(Sketcher.Constraint("Coincident", 10, 2, 11, 1))
sketch3.addConstraint(Sketcher.Constraint("Coincident", 11, 2, 8, 1))
sketch3.addConstraint(Sketcher.Constraint("Coincident", 12, 2, 13, 1))
sketch3.addConstraint(Sketcher.Constraint("Coincident", 13, 2, 14, 1))
sketch3.addConstraint(Sketcher.Constraint("Coincident", 14, 2, 15, 1))
sketch3.addConstraint(Sketcher.Constraint("Coincident", 15, 2, 12, 1))
sketch3.addConstraint(Sketcher.Constraint("Vertical", 0))
sketch3.addConstraint(Sketcher.Constraint("Horizontal", 1))
sketch3.addConstraint(Sketcher.Constraint("Vertical", 2))
sketch3.addConstraint(Sketcher.Constraint("Horizontal", 3))
sketch3.addConstraint(Sketcher.Constraint("Vertical", 4))
sketch3.addConstraint(Sketcher.Constraint("Horizontal", 5))
sketch3.addConstraint(Sketcher.Constraint("Vertical", 6))
sketch3.addConstraint(Sketcher.Constraint("Horizontal", 7))
sketch3.addConstraint(Sketcher.Constraint("Vertical", 8))
sketch3.addConstraint(Sketcher.Constraint("Horizontal", 9))
sketch3.addConstraint(Sketcher.Constraint("Vertical", 10))
sketch3.addConstraint(Sketcher.Constraint("Horizontal", 11))
sketch3.addConstraint(Sketcher.Constraint("Vertical", 12))
sketch3.addConstraint(Sketcher.Constraint("Horizontal", 13))
sketch3.addConstraint(Sketcher.Constraint("Vertical", 14))
sketch3.addConstraint(Sketcher.Constraint("Horizontal", 15))
sketch3.addConstraint(Sketcher.Constraint("Horizontal", 1, 2, 4, 2))
sketch3.addConstraint(Sketcher.Constraint("Horizontal", 3, 2, 6, 2))
sketch3.addConstraint(Sketcher.Constraint("Horizontal", 9, 2, 12, 2))
sketch3.addConstraint(Sketcher.Constraint("Vertical", 3, 2, 8, 2))
sketch3.addConstraint(Sketcher.Constraint("Vertical", 2, 2, 9, 2))
sketch3.addConstraint(Sketcher.Constraint("Vertical", 7, 2, 12, 2))
sketch3.addConstraint(Sketcher.Constraint("Vertical", 6, 2, 13, 2))
sketch3.addConstraint(Sketcher.Constraint("Equal", 3, 5))
sketch3.addConstraint(Sketcher.Constraint("Equal", 6, 8))
sketch3.addConstraint(Sketcher.Constraint("DistanceX", 1, 1, 1, 2, 6.0))
sketch3.addConstraint(Sketcher.Constraint("DistanceY", 0, 2, 0, 1, 10.0))
sketch3.addConstraint(Sketcher.Constraint("DistanceY", 0, 2, -1, 1, 15.0))
sketch3.addConstraint(Sketcher.Constraint("DistanceY", 8, 2, -1, 1, 45.0))
sketch3.addConstraint(Sketcher.Constraint("DistanceX", 0, 2, -1, 1, 9.5))
sketch3.addConstraint(Sketcher.Constraint("DistanceX", -1, 1, 4, 2, 3.75))
sketch3.addConstraint(Sketcher.Constraint("DistanceY", 12, 2, 12, 1, 10.567574))
pad3 = body3.newObject("PartDesign::Pad", "Pad002")
pad3.Profile = sketch3
pad3.Length = 303.541319
pad3.Reversed = True
doc.recompute()

body4 = doc.addObject("PartDesign::Body", "Body003")
body4.BaseFeature = body3
boolean = body.newObject("PartDesign::Boolean", "Boolean")
boolean.Type = "Cut"
boolean.addObjects([body4])
doc.recompute()

boolean2 = body2.newObject("PartDesign::Boolean", "Boolean001")
boolean2.Type = "Cut"
boolean2.addObjects([body3])

sketch4 = body2.newObject("Sketcher::SketchObject", "Sketch003")
sketch4.AttachmentSupport = (doc.getObject("YZ_Plane001"), [""])
sketch4.MapMode = "FlatFace"
sketch4.AttachmentOffset = App.Placement(Vector(0, 0, -3.5), App.Rotation())
sketch4.addGeometry(Part.Circle(Vector(15, -10, 0), Vector(0, 0, 1), 1.65), False)
sketch4.addGeometry(Part.Circle(Vector(15, -40, 0), Vector(0, 0, 1), 1.65), False)
sketch4.addConstraint(Sketcher.Constraint("Equal", 0, 1))
sketch4.addConstraint(Sketcher.Constraint("Vertical", 0, 3, 1, 3))
sketch4.addConstraint(Sketcher.Constraint("Diameter", 0, 3.3))
sketch4.addConstraint(Sketcher.Constraint("DistanceX", -1, 1, 0, 3, 15.0))
sketch4.addConstraint(Sketcher.Constraint("DistanceY", 0, 3, -1, 1, 10.0))
sketch4.addConstraint(Sketcher.Constraint("DistanceY", 1, 3, -1, 1, 40.0))
pocket1 = body2.newObject("PartDesign::Pocket", "Pocket")
pocket1.Profile = sketch4
pocket1.Type = "ThroughAll"
pocket1.Midplane = True

doc.recompute()
